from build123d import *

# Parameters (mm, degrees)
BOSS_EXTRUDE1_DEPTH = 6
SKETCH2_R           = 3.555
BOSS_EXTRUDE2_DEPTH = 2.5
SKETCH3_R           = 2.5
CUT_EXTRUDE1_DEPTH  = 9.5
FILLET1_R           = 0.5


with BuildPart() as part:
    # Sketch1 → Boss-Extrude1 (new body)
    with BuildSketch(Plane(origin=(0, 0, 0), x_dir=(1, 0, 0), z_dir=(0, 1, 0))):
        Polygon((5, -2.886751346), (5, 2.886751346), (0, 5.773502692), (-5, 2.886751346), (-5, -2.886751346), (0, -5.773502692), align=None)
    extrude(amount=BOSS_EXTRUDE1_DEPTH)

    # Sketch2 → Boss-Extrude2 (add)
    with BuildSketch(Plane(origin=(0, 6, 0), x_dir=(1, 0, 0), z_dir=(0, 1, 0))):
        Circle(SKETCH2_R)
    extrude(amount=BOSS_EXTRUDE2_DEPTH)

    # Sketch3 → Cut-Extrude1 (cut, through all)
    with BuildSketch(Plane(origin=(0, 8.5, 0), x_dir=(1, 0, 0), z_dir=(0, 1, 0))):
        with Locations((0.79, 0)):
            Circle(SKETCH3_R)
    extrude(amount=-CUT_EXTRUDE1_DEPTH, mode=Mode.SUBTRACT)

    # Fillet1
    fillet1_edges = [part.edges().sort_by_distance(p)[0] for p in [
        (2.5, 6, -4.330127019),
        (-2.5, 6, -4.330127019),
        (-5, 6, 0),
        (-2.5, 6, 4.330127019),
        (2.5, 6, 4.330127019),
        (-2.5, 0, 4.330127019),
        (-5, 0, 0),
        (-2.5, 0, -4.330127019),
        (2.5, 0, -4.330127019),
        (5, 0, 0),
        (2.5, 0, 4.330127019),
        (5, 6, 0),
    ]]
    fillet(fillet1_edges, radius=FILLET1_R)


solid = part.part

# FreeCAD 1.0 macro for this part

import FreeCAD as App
import Part
import Sketcher
Q = App.Units.Quantity


def edges_at(feature, points):
    """Names of the edges that pass closest to the given points."""
    edges = feature.Shape.Edges
    near = lambda p: min(range(len(edges)), key=lambda i: edges[i].distToShape(Part.Vertex(*p))[0])
    return sorted({f"Edge{near(p) + 1}" for p in points})

doc = App.newDocument("Part")
params = doc.addObject("Spreadsheet::Sheet", "Params")
for row, (alias, value) in enumerate([
    ("pad1_length", "6 mm"),
    ("sketch2_diameter", "7.11 mm"),
    ("pad2_length", "2.5 mm"),
    ("sketch3_diameter", "5 mm"),
    ("fillet_radius", "0.5 mm"),
], start=1):
    params.set(f"A{row}", alias)
    params.set(f"B{row}", "=" + value)
    params.setAlias(f"B{row}", alias)

body = doc.addObject("PartDesign::Body", "Body")

# Sketch on XZ plane
sketch1 = body.newObject("Sketcher::SketchObject", "Sketch")
sketch1.AttachmentSupport = (doc.getObject("XZ_Plane"), [""])
sketch1.MapMode = "FlatFace"
sketch1.addGeometry(Part.LineSegment(App.Vector(5, 3, 0), App.Vector(5, -3, 0)), False)
sketch1.addGeometry(Part.LineSegment(App.Vector(5, -3, 0), App.Vector(0, -6, 0)), False)
sketch1.addGeometry(Part.LineSegment(App.Vector(0, -6, 0), App.Vector(-5, -3, 0)), False)
sketch1.addGeometry(Part.LineSegment(App.Vector(-5, -3, 0), App.Vector(-5, 3, 0)), False)
sketch1.addGeometry(Part.LineSegment(App.Vector(-5, 3, 0), App.Vector(0, 6, 0)), False)
sketch1.addGeometry(Part.LineSegment(App.Vector(0, 6, 0), App.Vector(5, 3, 0)), False)
sketch1.addConstraint(Sketcher.Constraint("Coincident", 0, 2, 1, 1))
sketch1.addConstraint(Sketcher.Constraint("Coincident", 1, 2, 2, 1))
sketch1.addConstraint(Sketcher.Constraint("Coincident", 2, 2, 3, 1))
sketch1.addConstraint(Sketcher.Constraint("Coincident", 3, 2, 4, 1))
sketch1.addConstraint(Sketcher.Constraint("Coincident", 4, 2, 5, 1))
sketch1.addConstraint(Sketcher.Constraint("Coincident", 5, 2, 0, 1))
sketch1.addConstraint(Sketcher.Constraint("Vertical", 0))
sketch1.addConstraint(Sketcher.Constraint("Vertical", 3))
sketch1.addConstraint(Sketcher.Constraint("Symmetric", 0, 2, 3, 2, -1, 1))
sketch1.addConstraint(Sketcher.Constraint("Symmetric", 1, 2, 4, 2, -1, 1))
sketch1.addConstraint(Sketcher.Constraint("PointOnObject", 1, 2, -2))
sketch1.addConstraint(Sketcher.Constraint("Parallel", 2, 5))
sketch1.addConstraint(Sketcher.Constraint("Horizontal", 0, 2, 2, 2))
sketch1.addConstraint(Sketcher.Constraint("Angle", 1, Q("-150 deg")))
sketch1.addConstraint(Sketcher.Constraint("DistanceX", -1, 1, 0, 2, 5.0))
sketch1.addConstraint(Sketcher.Constraint("DistanceY", 0, 2, 0, 1, 5.773503))
pad1 = body.newObject("PartDesign::Pad", "Pad")
pad1.Profile = sketch1
pad1.setExpression("Length", "Params.pad1_length")
pad1.Reversed = True

# Sketch on XZ plane
sketch2 = body.newObject("Sketcher::SketchObject", "Sketch001")
sketch2.AttachmentSupport = (doc.getObject("XZ_Plane"), [""])
sketch2.MapMode = "FlatFace"
sketch2.AttachmentOffset = App.Placement(App.Vector(0, 0, -6), App.Rotation())
sketch2.addGeometry(Part.Circle(App.Vector(0, 0, 0), App.Vector(0, 0, 1), 3.6), False)
sketch2.addConstraint(Sketcher.Constraint("Coincident", 0, 3, -1, 1))
sketch2.addConstraint(Sketcher.Constraint("Diameter", 0, 7.11))
sketch2.setExpression("Constraints[1]", "Params.sketch2_diameter")
pad2 = body.newObject("PartDesign::Pad", "Pad001")
pad2.Profile = sketch2
pad2.setExpression("Length", "Params.pad2_length")
pad2.Reversed = True

# Sketch on XZ plane
sketch3 = body.newObject("Sketcher::SketchObject", "Sketch002")
sketch3.AttachmentSupport = (doc.getObject("XZ_Plane"), [""])
sketch3.MapMode = "FlatFace"
sketch3.AttachmentOffset = App.Placement(App.Vector(0, 0, -8.5), App.Rotation())
sketch3.addGeometry(Part.Circle(App.Vector(0.8, 0, 0), App.Vector(0, 0, 1), 2.5), False)
sketch3.addConstraint(Sketcher.Constraint("PointOnObject", 0, 3, -1))
sketch3.addConstraint(Sketcher.Constraint("Diameter", 0, 5.0))
sketch3.addConstraint(Sketcher.Constraint("DistanceX", -1, 1, 0, 3, 0.79))
sketch3.setExpression("Constraints[1]", "Params.sketch3_diameter")
pocket1 = body.newObject("PartDesign::Pocket", "Pocket")
pocket1.Profile = sketch3
pocket1.Type = "ThroughAll"
pocket1.Reversed = True
doc.recompute()

fillet = body.newObject("PartDesign::Fillet", "Fillet")
fillet.Base = (pocket1, edges_at(pocket1, [
    (2.5, 6, -4.33),
    (-2.5, 6, -4.33),
    (-5, 6, 0),
    (-2.5, 6, 4.33),
    (2.5, 6, 4.33),
    (-2.5, 0, 4.33),
    (-5, 0, 0),
    (-2.5, 0, -4.33),
    (2.5, 0, -4.33),
    (5, 0, 0),
    (2.5, 0, 4.33),
    (5, 6, 0),
]))
fillet.setExpression("Radius", "Params.fillet_radius")

doc.recompute()
